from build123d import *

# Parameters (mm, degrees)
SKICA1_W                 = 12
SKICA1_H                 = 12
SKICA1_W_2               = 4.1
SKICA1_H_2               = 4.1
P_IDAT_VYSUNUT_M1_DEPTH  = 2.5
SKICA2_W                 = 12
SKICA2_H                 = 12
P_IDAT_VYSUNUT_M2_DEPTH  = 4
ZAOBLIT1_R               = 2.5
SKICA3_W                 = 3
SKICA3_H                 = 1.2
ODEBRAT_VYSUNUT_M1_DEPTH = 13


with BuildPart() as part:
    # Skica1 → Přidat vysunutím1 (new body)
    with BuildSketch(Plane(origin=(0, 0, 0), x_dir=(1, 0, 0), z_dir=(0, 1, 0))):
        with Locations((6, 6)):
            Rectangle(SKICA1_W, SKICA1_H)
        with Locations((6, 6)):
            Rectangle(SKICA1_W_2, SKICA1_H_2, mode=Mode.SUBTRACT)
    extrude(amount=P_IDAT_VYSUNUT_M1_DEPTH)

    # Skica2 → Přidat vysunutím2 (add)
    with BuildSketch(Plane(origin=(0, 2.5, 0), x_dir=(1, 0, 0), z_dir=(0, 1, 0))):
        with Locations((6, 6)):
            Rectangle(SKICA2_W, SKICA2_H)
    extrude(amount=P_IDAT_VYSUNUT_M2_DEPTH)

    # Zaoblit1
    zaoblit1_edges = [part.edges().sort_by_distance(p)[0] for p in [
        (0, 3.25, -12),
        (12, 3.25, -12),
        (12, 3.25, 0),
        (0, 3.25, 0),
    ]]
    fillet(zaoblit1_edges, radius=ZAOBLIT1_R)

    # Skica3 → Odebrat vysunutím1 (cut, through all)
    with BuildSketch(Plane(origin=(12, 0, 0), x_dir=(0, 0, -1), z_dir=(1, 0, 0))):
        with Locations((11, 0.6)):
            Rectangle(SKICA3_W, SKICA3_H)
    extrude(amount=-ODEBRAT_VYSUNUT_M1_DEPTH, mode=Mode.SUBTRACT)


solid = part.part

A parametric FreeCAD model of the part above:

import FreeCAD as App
import Part
import Sketcher
Q = App.Units.Quantity


def edges_at(feature, points):
    """Names of the edges that pass closest to the given points."""
    edges = feature.Shape.Edges
    near = lambda p: min(range(len(edges)), key=lambda i: edges[i].distToShape(Part.Vertex(*p))[0])
    return sorted({f"Edge{near(p) + 1}" for p in points})


def add_polygon(sketch, points):
    """Adds a closed chain of lines whose ends are joined by coincident constraints."""
    first, n = sketch.GeometryCount, len(points)
    for a, b in zip(points, points[1:] + points[:1]):
        sketch.addGeometry(Part.LineSegment(App.Vector(*a, 0), App.Vector(*b, 0)), False)
    for i in range(n):
        sketch.addConstraint(Sketcher.Constraint("Coincident", first + i, 2, first + (i + 1) % n, 1))

doc = App.newDocument("Part")
body = doc.addObject("PartDesign::Body", "Body")

sketch1 = doc.addObject("Sketcher::SketchObject", "Sketch")
body.addObject(sketch1)
sketch1.AttachmentSupport = (doc.XZ_Plane, [""])
sketch1.MapMode = "FlatFace"
add_polygon(sketch1, [(0, -12), (0, 0), (12, 0), (12, -12)])
add_polygon(sketch1, [(8.1, -4), (4, -4), (4, -8.1), (8.1, -8.1)])
sketch1.addConstraint([
    Sketcher.Constraint("Vertical", 0),
    Sketcher.Constraint("Horizontal", 1),
    Sketcher.Constraint("Vertical", 2),
    Sketcher.Constraint("Horizontal", 3),
    Sketcher.Constraint("Horizontal", 4),
    Sketcher.Constraint("Vertical", 5),
    Sketcher.Constraint("Horizontal", 6),
    Sketcher.Constraint("Vertical", 7),
    Sketcher.Constraint("Coincident", 0, 2, -1, 1),
    Sketcher.Constraint("Equal", 3, 0),
    Sketcher.Constraint("Equal", 6, 5),
    Sketcher.Constraint("DistanceX", 1, 1, 1, 2, Q("12 mm")),
    Sketcher.Constraint("DistanceX", 4, 2, 4, 1, Q("4.1 mm")),
    Sketcher.Constraint("DistanceX", -1, 1, 4, 2, Q("3.95 mm")),
    Sketcher.Constraint("DistanceY", 4, 2, -1, 1, Q("3.95 mm")),
])
pad1 = doc.addObject("PartDesign::Pad", "Pad")
body.addObject(pad1)
pad1.Profile = sketch1
pad1.Length = 2.5
pad1.Reversed = True

sketch2 = doc.addObject("Sketcher::SketchObject", "Sketch001")
body.addObject(sketch2)
sketch2.AttachmentSupport = (doc.XZ_Plane, [""])
sketch2.MapMode = "FlatFace"
sketch2.AttachmentOffset = App.Placement(App.Vector(0, 0, -2.5), App.Rotation())
add_polygon(sketch2, [(0, -12), (0, 0), (12, 0), (12, -12)])
sketch2.addConstraint([
    Sketcher.Constraint("Vertical", 0),
    Sketcher.Constraint("Horizontal", 1),
    Sketcher.Constraint("Vertical", 2),
    Sketcher.Constraint("Horizontal", 3),
    Sketcher.Constraint("Coincident", 0, 2, -1, 1),
    Sketcher.Constraint("Equal", 3, 0),
    Sketcher.Constraint("DistanceX", 1, 1, 1, 2, Q("12 mm")),
])
pad2 = doc.addObject("PartDesign::Pad", "Pad001")
body.addObject(pad2)
pad2.Profile = sketch2
pad2.Length = 4
pad2.Reversed = True
doc.recompute()

fillet = doc.addObject("PartDesign::Fillet", "Fillet")
body.addObject(fillet)
fillet.Base = (pad2, edges_at(pad2, [
    (0, 3.25, -12),
    (12, 3.25, -12),
    (12, 3.25, 0),
    (0, 3.25, 0),
]))
fillet.Radius = 2.5

sketch3 = doc.addObject("Sketcher::SketchObject", "Sketch002")
body.addObject(sketch3)
sketch3.AttachmentSupport = (doc.YZ_Plane, [""])
sketch3.MapMode = "FlatFace"
sketch3.AttachmentOffset = App.Placement(App.Vector(0, 0, 12), App.Rotation())
add_polygon(sketch3, [(1.2, -9.5), (0, -9.5), (0, -12.5), (1.2, -12.5)])
sketch3.addConstraint([
    Sketcher.Constraint("Horizontal", 0),
    Sketcher.Constraint("Vertical", 1),
    Sketcher.Constraint("Horizontal", 2),
    Sketcher.Constraint("Vertical", 3),
    Sketcher.Constraint("PointOnObject", 0, 2, -2),
    Sketcher.Constraint("DistanceY", 1, 2, 1, 1, Q("3 mm")),
    Sketcher.Constraint("DistanceX", 0, 2, 0, 1, Q("1.2 mm")),
    Sketcher.Constraint("DistanceY", 0, 2, -1, 1, Q("9.5 mm")),
])
pocket1 = doc.addObject("PartDesign::Pocket", "Pocket")
body.addObject(pocket1)
pocket1.Profile = sketch3
pocket1.Type = "ThroughAll"

doc.recompute()
